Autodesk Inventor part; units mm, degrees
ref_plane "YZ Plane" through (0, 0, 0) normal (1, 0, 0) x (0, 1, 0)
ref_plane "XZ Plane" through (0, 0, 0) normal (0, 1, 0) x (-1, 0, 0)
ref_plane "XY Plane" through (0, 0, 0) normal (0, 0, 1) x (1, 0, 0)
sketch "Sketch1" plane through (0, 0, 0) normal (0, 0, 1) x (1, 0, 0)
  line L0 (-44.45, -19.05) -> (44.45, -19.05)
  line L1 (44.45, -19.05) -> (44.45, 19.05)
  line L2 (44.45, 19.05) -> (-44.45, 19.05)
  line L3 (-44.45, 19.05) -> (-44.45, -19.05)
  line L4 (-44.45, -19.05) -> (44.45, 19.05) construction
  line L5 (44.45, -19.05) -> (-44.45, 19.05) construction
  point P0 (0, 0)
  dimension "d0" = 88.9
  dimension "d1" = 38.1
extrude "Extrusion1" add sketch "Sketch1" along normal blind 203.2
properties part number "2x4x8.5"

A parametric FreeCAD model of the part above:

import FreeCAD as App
import Part
import Sketcher
Q = App.Units.Quantity


def add_polygon(sketch, points):
    """Adds a closed chain of lines whose ends are joined by coincident constraints."""
    first, n = sketch.GeometryCount, len(points)
    for a, b in zip(points, points[1:] + points[:1]):
        sketch.addGeometry(Part.LineSegment(App.Vector(*a, 0), App.Vector(*b, 0)), False)
    for i in range(n):
        sketch.addConstraint(Sketcher.Constraint("Coincident", first + i, 2, first + (i + 1) % n, 1))

doc = App.newDocument("Part")
body = doc.addObject("PartDesign::Body", "Body")

# Sketch on XY plane
sketch1 = body.newObject("Sketcher::SketchObject", "Sketch")
sketch1.AttachmentSupport = (doc.getObject("XY_Plane"), [""])
sketch1.MapMode = "FlatFace"
add_polygon(sketch1, [(-44, 19), (-44, -19), (44, -19), (44, 19)])  # lines 0-3
sketch1.addConstraint([
    Sketcher.Constraint("Vertical", 0),
    Sketcher.Constraint("Horizontal", 1),
    Sketcher.Constraint("Vertical", 2),
    Sketcher.Constraint("Horizontal", 3),
    Sketcher.Constraint("Symmetric", 0, 2, 2, 2, -1, 1),
    Sketcher.Constraint("DistanceX", 1, 1, 1, 2, Q("3.5 in")),
    Sketcher.Constraint("DistanceY", 0, 2, 0, 1, Q("1.5 in")),
])
pad1 = body.newObject("PartDesign::Pad", "Pad")
pad1.Profile = sketch1
pad1.Length = Q("8 in")

doc.recompute()
